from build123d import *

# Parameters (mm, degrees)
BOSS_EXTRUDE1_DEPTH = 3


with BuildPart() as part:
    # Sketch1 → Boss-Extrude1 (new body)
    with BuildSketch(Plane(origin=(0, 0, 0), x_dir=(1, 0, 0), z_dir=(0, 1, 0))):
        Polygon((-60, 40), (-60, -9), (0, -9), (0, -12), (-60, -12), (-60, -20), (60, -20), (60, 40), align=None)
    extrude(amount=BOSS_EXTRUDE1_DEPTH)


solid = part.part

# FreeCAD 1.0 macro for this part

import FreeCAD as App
import Part
import Sketcher

V = App.Vector
Q = App.Units.Quantity


def add_polygon(sketch, points):
    """Adds a closed chain of lines whose ends are joined by coincident constraints."""
    first, n = sketch.GeometryCount, len(points)
    for a, b in zip(points, points[1:] + points[:1]):
        sketch.addGeometry(Part.LineSegment(App.Vector(*a, 0), App.Vector(*b, 0)), False)
    for i in range(n):
        sketch.addConstraint(Sketcher.Constraint("Coincident", first + i, 2, first + (i + 1) % n, 1))

doc = App.newDocument("Part")
params = doc.addObject("Spreadsheet::Sheet", "Params")
for row, (alias, value) in enumerate([
    ("sketch1_width", "60 mm"),
    ("sketch1_width2", "120 mm"),
    ("sketch1_height", "49 mm"),
    ("sketch1_height2", "3 mm"),
    ("pad1_length", "3 mm"),
], start=1):
    params.set(f"A{row}", alias)
    params.set(f"B{row}", "=" + value)
    params.setAlias(f"B{row}", alias)

body = doc.addObject("PartDesign::Body", "Body")

sketch1 = body.newObject("Sketcher::SketchObject", "Sketch")
sketch1.AttachmentSupport = (doc.getObject("XZ_Plane"), [""])
sketch1.MapMode = "FlatFace"
add_polygon(sketch1, [(-60, -40), (-60, 9), (0, 9), (0, 12), (-60, 12), (-60, 20), (60, 20), (60, -40)])
sketch1.addConstraint([
    Sketcher.Constraint("Vertical", 0),
    Sketcher.Constraint("Horizontal", 1),
    Sketcher.Constraint("Vertical", 2),
    Sketcher.Constraint("Horizontal", 3),
    Sketcher.Constraint("Vertical", 4),
    Sketcher.Constraint("Horizontal", 5),
    Sketcher.Constraint("Vertical", 6),
    Sketcher.Constraint("Horizontal", 7),
    Sketcher.Constraint("PointOnObject", 1, 2, -2),
    Sketcher.Constraint("Vertical", 0, 2, 3, 2),
    Sketcher.Constraint("Equal", 3, 6),
    Sketcher.Constraint("DistanceX", 1, 1, 1, 2, Q("60 mm")),
    Sketcher.Constraint("DistanceX", 5, 1, 5, 2, Q("120 mm")),
    Sketcher.Constraint("DistanceY", 0, 1, 0, 2, Q("49 mm")),
    Sketcher.Constraint("DistanceY", 2, 1, 2, 2, Q("3 mm")),
    Sketcher.Constraint("DistanceY", -1, 1, 0, 2, Q("9 mm")),
])
sketch1.setExpression("Constraints[19]", "Params.sketch1_width")
sketch1.setExpression("Constraints[20]", "Params.sketch1_width2")
sketch1.setExpression("Constraints[21]", "Params.sketch1_height")
sketch1.setExpression("Constraints[22]", "Params.sketch1_height2")
pad1 = body.newObject("PartDesign::Pad", "Pad")
pad1.Profile = sketch1
pad1.setExpression("Length", "Params.pad1_length")
pad1.Reversed = True

doc.recompute()
